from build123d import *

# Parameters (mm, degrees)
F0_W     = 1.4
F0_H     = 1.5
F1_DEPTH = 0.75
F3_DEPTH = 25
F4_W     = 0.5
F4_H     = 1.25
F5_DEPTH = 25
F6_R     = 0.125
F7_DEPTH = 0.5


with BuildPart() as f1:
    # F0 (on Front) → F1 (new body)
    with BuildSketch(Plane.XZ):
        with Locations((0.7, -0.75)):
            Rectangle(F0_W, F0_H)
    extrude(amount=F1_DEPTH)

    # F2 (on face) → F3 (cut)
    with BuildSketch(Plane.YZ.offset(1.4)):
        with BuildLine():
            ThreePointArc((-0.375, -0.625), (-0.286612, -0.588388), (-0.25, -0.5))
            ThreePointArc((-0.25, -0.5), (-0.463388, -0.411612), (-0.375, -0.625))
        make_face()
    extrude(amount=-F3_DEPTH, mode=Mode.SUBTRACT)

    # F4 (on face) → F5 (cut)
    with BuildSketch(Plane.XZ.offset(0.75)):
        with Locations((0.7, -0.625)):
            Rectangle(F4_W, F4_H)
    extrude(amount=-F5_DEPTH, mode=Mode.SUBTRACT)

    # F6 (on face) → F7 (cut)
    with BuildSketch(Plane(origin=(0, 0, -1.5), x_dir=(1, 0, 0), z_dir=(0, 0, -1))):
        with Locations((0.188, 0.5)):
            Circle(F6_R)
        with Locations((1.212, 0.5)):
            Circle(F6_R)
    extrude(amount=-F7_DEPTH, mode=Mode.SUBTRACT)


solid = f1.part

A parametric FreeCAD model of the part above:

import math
import FreeCAD as App
import Part
import Sketcher


def add_polygon(sketch, points):
    """Adds a closed chain of lines whose ends are joined by coincident constraints."""
    first, n = sketch.GeometryCount, len(points)
    for a, b in zip(points, points[1:] + points[:1]):
        sketch.addGeometry(Part.LineSegment(App.Vector(*a, 0), App.Vector(*b, 0)), False)
    for i in range(n):
        sketch.addConstraint(Sketcher.Constraint("Coincident", first + i, 2, first + (i + 1) % n, 1))

doc = App.newDocument("Part")
body = doc.addObject("PartDesign::Body", "Body")

# Sketch on XZ plane
sketch1 = body.newObject("Sketcher::SketchObject", "Sketch")
sketch1.AttachmentSupport = (doc.getObject("XZ_Plane"), [""])
sketch1.MapMode = "FlatFace"
add_polygon(sketch1, [(0, 0), (0, -1.5), (1.4, -1.5), (1.4, 0)])  # lines 0-3
sketch1.addConstraint(Sketcher.Constraint("Vertical", 0))
sketch1.addConstraint(Sketcher.Constraint("Horizontal", 1))
sketch1.addConstraint(Sketcher.Constraint("Vertical", 2))
sketch1.addConstraint(Sketcher.Constraint("Horizontal", 3))
sketch1.addConstraint(Sketcher.Constraint("Coincident", 3, 2, -1, 1))
sketch1.addConstraint(Sketcher.Constraint("DistanceX", 1, 1, 1, 2, 1.4))
sketch1.addConstraint(Sketcher.Constraint("DistanceY", 0, 2, 0, 1, 1.5))
pad1 = body.newObject("PartDesign::Pad", "Pad")
pad1.Profile = sketch1
pad1.Length = 0.75

# Sketch on YZ plane
sketch2 = body.newObject("Sketcher::SketchObject", "Sketch001")
sketch2.AttachmentSupport = (doc.getObject("YZ_Plane"), [""])
sketch2.MapMode = "FlatFace"
sketch2.AttachmentOffset = App.Placement(App.Vector(0, 0, 1.4), App.Rotation())
sketch2.addGeometry(Part.ArcOfCircle(Part.Circle(App.Vector(-0.38, -0.5, 0), App.Vector(0, 0, 1), 0.13), math.radians(-90), math.radians(0)), False)
sketch2.addGeometry(Part.ArcOfCircle(Part.Circle(App.Vector(-0.37, -0.5, 0), App.Vector(0, 0, 1), 0.12), math.radians(0), math.radians(270)), False)
sketch2.addConstraint(Sketcher.Constraint("Coincident", 0, 1, 1, 2))
sketch2.addConstraint(Sketcher.Constraint("Coincident", 1, 1, 0, 2))
sketch2.addConstraint(Sketcher.Constraint("Equal", 0, 1))
sketch2.addConstraint(Sketcher.Constraint("Horizontal", 0, 3, 1, 1))
sketch2.addConstraint(Sketcher.Constraint("Vertical", 1, 3, 0, 1))
sketch2.addConstraint(Sketcher.Constraint("Radius", 0, 0.125001))
sketch2.addConstraint(Sketcher.Constraint("DistanceY", 0, 3, -1, 1, 0.499999))
sketch2.addConstraint(Sketcher.Constraint("DistanceX", 1, 1, -1, 1, 0.25))
pocket1 = body.newObject("PartDesign::Pocket", "Pocket")
pocket1.Profile = sketch2
pocket1.Length = 25

# Sketch on XZ plane
sketch3 = body.newObject("Sketcher::SketchObject", "Sketch002")
sketch3.AttachmentSupport = (doc.getObject("XZ_Plane"), [""])
sketch3.MapMode = "FlatFace"
sketch3.AttachmentOffset = App.Placement(App.Vector(0, 0, 0.75), App.Rotation())
add_polygon(sketch3, [(0.45, 0), (0.45, -1.25), (0.95, -1.25), (0.95, 0)])  # lines 0-3
sketch3.addConstraint(Sketcher.Constraint("Vertical", 0))
sketch3.addConstraint(Sketcher.Constraint("Horizontal", 1))
sketch3.addConstraint(Sketcher.Constraint("Vertical", 2))
sketch3.addConstraint(Sketcher.Constraint("Horizontal", 3))
sketch3.addConstraint(Sketcher.Constraint("PointOnObject", 2, 2, -1))
sketch3.addConstraint(Sketcher.Constraint("DistanceX", 1, 1, 1, 2, 0.5))
sketch3.addConstraint(Sketcher.Constraint("DistanceY", 0, 2, 0, 1, 1.25))
sketch3.addConstraint(Sketcher.Constraint("DistanceX", -1, 1, 0, 2, 0.45))
pocket2 = body.newObject("PartDesign::Pocket", "Pocket001")
pocket2.Profile = sketch3
pocket2.Length = 25

# Sketch on XY plane
sketch4 = body.newObject("Sketcher::SketchObject", "Sketch003")
sketch4.AttachmentSupport = (doc.getObject("XY_Plane"), [""])
sketch4.MapMode = "FlatFace"
sketch4.AttachmentOffset = App.Placement(App.Vector(0, 0, -1.5), App.Rotation())
sketch4.addGeometry(Part.Circle(App.Vector(0.19, -0.5, 0), App.Vector(0, 0, 1), 0.12), False)
sketch4.addGeometry(Part.Circle(App.Vector(1.21, -0.5, 0), App.Vector(0, 0, 1), 0.12), False)
sketch4.addConstraint(Sketcher.Constraint("Equal", 0, 1))
sketch4.addConstraint(Sketcher.Constraint("Horizontal", 0, 3, 1, 3))
sketch4.addConstraint(Sketcher.Constraint("Diameter", 0, 0.25))
sketch4.addConstraint(Sketcher.Constraint("DistanceY", 0, 3, -1, 1, 0.5))
sketch4.addConstraint(Sketcher.Constraint("DistanceX", -1, 1, 0, 3, 0.188))
sketch4.addConstraint(Sketcher.Constraint("DistanceX", -1, 1, 1, 3, 1.212))
pocket3 = body.newObject("PartDesign::Pocket", "Pocket002")
pocket3.Profile = sketch4
pocket3.Length = 0.5
pocket3.Reversed = True

doc.recompute()
